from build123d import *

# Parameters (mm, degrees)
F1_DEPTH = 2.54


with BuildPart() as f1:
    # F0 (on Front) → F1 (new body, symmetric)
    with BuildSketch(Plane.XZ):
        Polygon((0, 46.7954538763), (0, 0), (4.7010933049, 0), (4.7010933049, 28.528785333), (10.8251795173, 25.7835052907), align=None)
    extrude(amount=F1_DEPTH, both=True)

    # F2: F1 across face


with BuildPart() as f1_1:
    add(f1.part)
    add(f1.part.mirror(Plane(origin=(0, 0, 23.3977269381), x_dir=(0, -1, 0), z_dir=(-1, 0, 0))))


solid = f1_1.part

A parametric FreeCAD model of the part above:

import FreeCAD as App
import Part
import Sketcher

V = App.Vector
Q = App.Units.Quantity


def add_polygon(sketch, points):
    """Adds a closed chain of lines whose ends are joined by coincident constraints."""
    first, n = sketch.GeometryCount, len(points)
    for a, b in zip(points, points[1:] + points[:1]):
        sketch.addGeometry(Part.LineSegment(App.Vector(*a, 0), App.Vector(*b, 0)), False)
    for i in range(n):
        sketch.addConstraint(Sketcher.Constraint("Coincident", first + i, 2, first + (i + 1) % n, 1))

doc = App.newDocument("Part")
body = doc.addObject("PartDesign::Body", "Body")

sketch1 = doc.addObject("Sketcher::SketchObject", "Sketch")
body.addObject(sketch1)
sketch1.AttachmentSupport = (doc.XZ_Plane, [""])
sketch1.MapMode = "FlatFace"
add_polygon(sketch1, [(0, 46.8), (0, 0), (4.7, 0), (4.7, 28.5), (10.8, 25.8)])
sketch1.addConstraint(Sketcher.Constraint("Vertical", 0))
sketch1.addConstraint(Sketcher.Constraint("Horizontal", 1))
sketch1.addConstraint(Sketcher.Constraint("Vertical", 2))
sketch1.addConstraint(Sketcher.Constraint("Coincident", 0, 2, -1, 1))
sketch1.addConstraint(Sketcher.Constraint("Distance", 3, Q("6.711259 mm")))
sketch1.addConstraint(Sketcher.Constraint("Distance", 4, Q("23.63655 mm")))
sketch1.addConstraint(Sketcher.Constraint("DistanceX", 1, 1, 1, 2, Q("4.701093 mm")))
sketch1.addConstraint(Sketcher.Constraint("DistanceY", 0, 2, 0, 1, Q("46.795454 mm")))
sketch1.addConstraint(Sketcher.Constraint("DistanceY", 2, 1, 2, 2, Q("28.528785 mm")))
pad1 = doc.addObject("PartDesign::Pad", "Pad")
body.addObject(pad1)
pad1.Profile = sketch1
pad1.Length = Q("0.2 in")
pad1.Midplane = True
body2 = doc.addObject("PartDesign::Body", "Body001")
doc.recompute()

body2.BaseFeature = body
doc.recompute()

mirroring = doc.addObject("Part::Mirroring", "Mirroring")
mirroring.Source = body
mirroring.Base = V(0, 0, 23.397727)
mirroring.Normal = V(-1, 0, 0)
body3 = doc.addObject("PartDesign::Body", "Body002")
body3.BaseFeature = mirroring
boolean = doc.addObject("PartDesign::Boolean", "Boolean")
body2.addObject(boolean)
boolean.Type = "Fuse"
boolean.addObjects([body3])
doc.recompute()
mirroring.Visibility = False

doc.recompute()
